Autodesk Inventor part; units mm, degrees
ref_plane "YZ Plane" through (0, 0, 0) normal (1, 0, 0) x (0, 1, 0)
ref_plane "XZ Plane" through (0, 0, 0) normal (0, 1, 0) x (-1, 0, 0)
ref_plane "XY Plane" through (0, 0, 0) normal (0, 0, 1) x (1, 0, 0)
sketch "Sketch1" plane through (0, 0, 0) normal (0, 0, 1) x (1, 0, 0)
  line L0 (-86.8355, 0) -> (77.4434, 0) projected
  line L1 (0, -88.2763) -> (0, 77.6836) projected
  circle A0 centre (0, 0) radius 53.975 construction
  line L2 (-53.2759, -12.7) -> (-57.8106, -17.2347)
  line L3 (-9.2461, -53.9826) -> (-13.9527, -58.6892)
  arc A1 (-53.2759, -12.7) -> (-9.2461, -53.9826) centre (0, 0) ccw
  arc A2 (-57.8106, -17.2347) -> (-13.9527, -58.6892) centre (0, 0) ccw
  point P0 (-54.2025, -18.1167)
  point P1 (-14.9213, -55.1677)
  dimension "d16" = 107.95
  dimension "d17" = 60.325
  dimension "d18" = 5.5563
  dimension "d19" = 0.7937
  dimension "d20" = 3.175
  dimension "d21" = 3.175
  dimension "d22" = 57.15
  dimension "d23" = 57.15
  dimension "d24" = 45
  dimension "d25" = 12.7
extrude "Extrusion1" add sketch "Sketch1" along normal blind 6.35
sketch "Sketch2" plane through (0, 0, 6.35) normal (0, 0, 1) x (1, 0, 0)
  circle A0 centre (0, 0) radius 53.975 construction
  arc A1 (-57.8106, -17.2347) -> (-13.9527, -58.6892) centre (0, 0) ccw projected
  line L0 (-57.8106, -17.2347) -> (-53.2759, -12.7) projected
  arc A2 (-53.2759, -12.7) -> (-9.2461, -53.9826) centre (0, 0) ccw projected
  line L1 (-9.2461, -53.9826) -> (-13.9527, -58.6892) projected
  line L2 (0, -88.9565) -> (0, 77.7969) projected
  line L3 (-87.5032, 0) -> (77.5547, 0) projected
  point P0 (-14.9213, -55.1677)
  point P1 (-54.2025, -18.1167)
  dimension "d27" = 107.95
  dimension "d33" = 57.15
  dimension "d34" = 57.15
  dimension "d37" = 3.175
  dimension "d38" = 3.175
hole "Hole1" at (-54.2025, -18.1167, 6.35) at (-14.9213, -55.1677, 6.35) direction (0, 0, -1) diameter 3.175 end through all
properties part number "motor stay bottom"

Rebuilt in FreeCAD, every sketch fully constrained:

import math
import FreeCAD as App
import Part
import Sketcher
from FreeCAD import Vector
Q = App.Units.Quantity

doc = App.newDocument("Part")
body = doc.addObject("PartDesign::Body", "Body")

sketch1 = body.newObject("Sketcher::SketchObject", "Sketch")
sketch1.AttachmentSupport = (doc.getObject("XY_Plane"), [""])
sketch1.MapMode = "FlatFace"
sketch1.addGeometry(Part.ArcOfCircle(Part.Circle(Vector(0, 0, 0), Vector(0, 0, 1), 55), math.radians(-167), math.radians(-100)), False)
sketch1.addGeometry(Part.LineSegment(Vector(-53, -13, 0), Vector(-58, -17, 0)), False)
sketch1.addGeometry(Part.ArcOfCircle(Part.Circle(Vector(0, 0, 0), Vector(0, 0, 1), 60), math.radians(-163), math.radians(-103)), False)
sketch1.addGeometry(Part.LineSegment(Vector(-14, -59, 0), Vector(-9, -54, 0)), False)
sketch1.addConstraint(Sketcher.Constraint("Coincident", 0, 1, 1, 1))
sketch1.addConstraint(Sketcher.Constraint("Coincident", 1, 2, 2, 1))
sketch1.addConstraint(Sketcher.Constraint("Coincident", 2, 2, 3, 1))
sketch1.addConstraint(Sketcher.Constraint("Coincident", 3, 2, 0, 2))
sketch1.addConstraint(Sketcher.Constraint("Coincident", 0, 3, -1, 1))
sketch1.addConstraint(Sketcher.Constraint("Coincident", 2, 3, -1, 1))
sketch1.addConstraint(Sketcher.Constraint("Parallel", 1, 3))
sketch1.addConstraint(Sketcher.Constraint("Angle", 3, Q("45 deg")))
sketch1.addConstraint(Sketcher.Constraint("Radius", 2, Q("2.375 in")))
sketch1.addConstraint(Sketcher.Constraint("DistanceY", 0, 1, -1, 1, Q("0.5 in")))
sketch1.addConstraint(Sketcher.Constraint("Radius", 0, Q("2.156248 in")))
sketch1.addConstraint(Sketcher.Constraint("DistanceX", 1, 2, 3, 2, Q("1.912 in")))
pad1 = body.newObject("PartDesign::Pad", "Pad")
pad1.Profile = sketch1
pad1.Length = Q("0.25 in")

sketch2 = body.newObject("Sketcher::SketchObject", "Sketch001")
sketch2.AttachmentSupport = (doc.getObject("XY_Plane"), [""])
sketch2.MapMode = "FlatFace"
sketch2.AttachmentOffset = App.Placement(Vector(0, 0, 0.25 * 25.4), App.Rotation())
sketch2.addGeometry(Part.Circle(Vector(-54.2, -18.1, 0), Vector(0, 0, 1), 1.6), False)
sketch2.addGeometry(Part.Circle(Vector(-14.9, -55.2, 0), Vector(0, 0, 1), 1.6), False)
sketch2.addConstraint(Sketcher.Constraint("Equal", 0, 1))
sketch2.addConstraint(Sketcher.Constraint("Diameter", 0, Q("0.125 in")))
sketch2.addConstraint(Sketcher.Constraint("DistanceX", 0, 3, 1, 3, Q("1.5465 in")))
sketch2.addConstraint(Sketcher.Constraint("DistanceY", 1, 3, 0, 3, Q("1.4587 in")))
sketch2.addConstraint(Sketcher.Constraint("DistanceX", 0, 3, -1, 1, Q("54.2025 mm")))
sketch2.addConstraint(Sketcher.Constraint("DistanceY", 0, 3, -1, 1, Q("18.1167 mm")))
doc.recompute()
hole = body.newObject("PartDesign::Hole", "Hole")
hole.Profile = sketch2
hole.ThreadType = "None"
hole.Diameter = Q("0.125 in")
hole.DepthType = "ThroughAll"

doc.recompute()
